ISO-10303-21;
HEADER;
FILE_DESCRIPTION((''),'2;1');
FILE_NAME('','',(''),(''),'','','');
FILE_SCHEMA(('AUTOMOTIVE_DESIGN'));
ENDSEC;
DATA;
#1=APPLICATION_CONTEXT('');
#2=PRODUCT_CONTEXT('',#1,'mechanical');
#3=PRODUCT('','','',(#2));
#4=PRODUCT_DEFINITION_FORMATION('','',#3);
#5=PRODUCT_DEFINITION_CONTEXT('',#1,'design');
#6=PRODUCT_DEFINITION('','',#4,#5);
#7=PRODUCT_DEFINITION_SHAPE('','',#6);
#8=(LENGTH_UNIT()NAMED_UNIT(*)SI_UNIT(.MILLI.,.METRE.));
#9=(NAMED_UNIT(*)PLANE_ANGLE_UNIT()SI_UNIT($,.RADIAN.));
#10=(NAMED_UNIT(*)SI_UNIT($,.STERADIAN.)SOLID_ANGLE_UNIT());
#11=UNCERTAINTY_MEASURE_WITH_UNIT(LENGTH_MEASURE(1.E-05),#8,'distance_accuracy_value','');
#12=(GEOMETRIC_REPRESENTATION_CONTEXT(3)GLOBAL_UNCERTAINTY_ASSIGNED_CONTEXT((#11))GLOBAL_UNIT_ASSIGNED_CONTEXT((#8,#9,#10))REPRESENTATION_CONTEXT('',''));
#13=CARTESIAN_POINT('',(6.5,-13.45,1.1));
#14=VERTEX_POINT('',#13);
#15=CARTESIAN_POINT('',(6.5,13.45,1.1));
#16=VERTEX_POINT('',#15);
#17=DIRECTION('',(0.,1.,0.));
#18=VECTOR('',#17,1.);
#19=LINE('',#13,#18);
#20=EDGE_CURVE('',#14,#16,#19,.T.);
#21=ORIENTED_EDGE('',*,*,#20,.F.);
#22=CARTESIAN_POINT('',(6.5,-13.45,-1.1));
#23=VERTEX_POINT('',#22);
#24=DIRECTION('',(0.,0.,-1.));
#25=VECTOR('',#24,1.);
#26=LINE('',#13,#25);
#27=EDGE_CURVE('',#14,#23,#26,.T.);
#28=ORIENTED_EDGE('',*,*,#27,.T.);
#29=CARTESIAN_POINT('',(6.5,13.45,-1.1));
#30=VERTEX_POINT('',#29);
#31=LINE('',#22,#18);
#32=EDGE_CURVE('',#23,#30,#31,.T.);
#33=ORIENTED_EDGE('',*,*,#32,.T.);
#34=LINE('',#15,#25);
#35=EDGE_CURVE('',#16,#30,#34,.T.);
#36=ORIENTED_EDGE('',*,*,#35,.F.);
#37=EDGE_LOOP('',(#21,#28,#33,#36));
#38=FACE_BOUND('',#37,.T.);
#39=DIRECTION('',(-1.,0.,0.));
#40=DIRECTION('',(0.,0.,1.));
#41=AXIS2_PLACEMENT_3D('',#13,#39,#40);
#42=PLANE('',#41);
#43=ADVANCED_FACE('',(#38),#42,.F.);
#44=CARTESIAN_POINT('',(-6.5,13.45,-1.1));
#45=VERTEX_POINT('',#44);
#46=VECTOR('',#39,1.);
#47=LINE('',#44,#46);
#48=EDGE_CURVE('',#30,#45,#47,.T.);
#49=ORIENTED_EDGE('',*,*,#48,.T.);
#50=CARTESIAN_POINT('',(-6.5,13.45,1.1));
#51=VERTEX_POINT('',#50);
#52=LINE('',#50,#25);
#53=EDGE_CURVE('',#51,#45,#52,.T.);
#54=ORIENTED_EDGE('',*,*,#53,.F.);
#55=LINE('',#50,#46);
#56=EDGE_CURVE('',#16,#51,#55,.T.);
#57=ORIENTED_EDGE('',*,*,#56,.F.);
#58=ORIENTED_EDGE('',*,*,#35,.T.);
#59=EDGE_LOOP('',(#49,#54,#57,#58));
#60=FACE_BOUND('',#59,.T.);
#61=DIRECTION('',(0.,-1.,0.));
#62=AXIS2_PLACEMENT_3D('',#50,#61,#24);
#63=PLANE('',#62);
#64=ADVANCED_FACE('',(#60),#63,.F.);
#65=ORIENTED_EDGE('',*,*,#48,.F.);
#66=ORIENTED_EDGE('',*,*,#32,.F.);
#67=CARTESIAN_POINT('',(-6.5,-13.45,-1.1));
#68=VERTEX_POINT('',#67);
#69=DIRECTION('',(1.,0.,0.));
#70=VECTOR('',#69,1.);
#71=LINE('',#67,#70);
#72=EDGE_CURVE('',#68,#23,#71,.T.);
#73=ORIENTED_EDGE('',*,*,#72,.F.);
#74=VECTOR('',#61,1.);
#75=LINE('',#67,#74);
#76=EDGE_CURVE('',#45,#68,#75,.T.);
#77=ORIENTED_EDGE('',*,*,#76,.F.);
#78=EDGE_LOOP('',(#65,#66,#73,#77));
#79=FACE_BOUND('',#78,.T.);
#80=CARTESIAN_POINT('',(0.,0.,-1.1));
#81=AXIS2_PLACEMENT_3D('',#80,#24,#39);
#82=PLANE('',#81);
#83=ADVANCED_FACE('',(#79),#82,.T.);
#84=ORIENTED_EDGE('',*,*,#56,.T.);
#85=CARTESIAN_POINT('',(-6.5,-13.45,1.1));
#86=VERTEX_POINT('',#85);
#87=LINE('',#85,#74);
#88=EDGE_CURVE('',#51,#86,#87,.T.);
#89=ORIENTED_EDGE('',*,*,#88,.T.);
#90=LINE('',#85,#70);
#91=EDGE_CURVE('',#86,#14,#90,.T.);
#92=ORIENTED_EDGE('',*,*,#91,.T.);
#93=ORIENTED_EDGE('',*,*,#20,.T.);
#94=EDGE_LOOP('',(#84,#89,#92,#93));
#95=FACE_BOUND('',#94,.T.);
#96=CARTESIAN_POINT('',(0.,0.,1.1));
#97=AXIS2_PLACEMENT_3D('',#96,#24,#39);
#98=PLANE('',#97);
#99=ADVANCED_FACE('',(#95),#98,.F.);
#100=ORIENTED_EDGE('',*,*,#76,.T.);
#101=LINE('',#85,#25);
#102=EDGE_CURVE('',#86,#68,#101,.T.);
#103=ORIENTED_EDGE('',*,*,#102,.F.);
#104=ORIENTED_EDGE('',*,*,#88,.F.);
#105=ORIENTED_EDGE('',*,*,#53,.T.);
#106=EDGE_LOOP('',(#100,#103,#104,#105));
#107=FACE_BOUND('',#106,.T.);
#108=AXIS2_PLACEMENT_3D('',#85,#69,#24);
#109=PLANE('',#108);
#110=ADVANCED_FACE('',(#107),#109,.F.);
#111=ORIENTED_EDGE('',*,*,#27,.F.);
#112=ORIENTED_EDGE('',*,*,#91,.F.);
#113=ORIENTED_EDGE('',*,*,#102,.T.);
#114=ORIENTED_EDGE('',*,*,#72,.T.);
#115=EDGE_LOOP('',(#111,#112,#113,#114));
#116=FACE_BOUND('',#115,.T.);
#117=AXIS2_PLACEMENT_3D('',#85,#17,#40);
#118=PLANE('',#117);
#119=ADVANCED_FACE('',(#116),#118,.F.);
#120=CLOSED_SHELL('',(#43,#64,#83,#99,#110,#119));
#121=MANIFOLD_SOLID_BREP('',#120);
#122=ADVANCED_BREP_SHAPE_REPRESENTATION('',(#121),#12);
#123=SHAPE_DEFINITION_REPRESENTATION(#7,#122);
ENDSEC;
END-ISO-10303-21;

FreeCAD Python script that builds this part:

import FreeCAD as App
import Part
import Sketcher


def add_polygon(sketch, points):
    """Adds a closed chain of lines whose ends are joined by coincident constraints."""
    first, n = sketch.GeometryCount, len(points)
    for a, b in zip(points, points[1:] + points[:1]):
        sketch.addGeometry(Part.LineSegment(App.Vector(*a, 0), App.Vector(*b, 0)), False)
    for i in range(n):
        sketch.addConstraint(Sketcher.Constraint("Coincident", first + i, 2, first + (i + 1) % n, 1))

doc = App.newDocument("Part")
params = doc.addObject("Spreadsheet::Sheet", "Params")
for row, (alias, value) in enumerate([
    ("sketch1_width", "13 mm"),
    ("sketch1_height", "26.9 mm"),
    ("pad1_length", "2.2 mm"),
], start=1):
    params.set(f"A{row}", alias)
    params.set(f"B{row}", "=" + value)
    params.setAlias(f"B{row}", alias)

body = doc.addObject("PartDesign::Body", "Body")

# Sketch on XY plane
sketch1 = body.newObject("Sketcher::SketchObject", "Sketch")
sketch1.AttachmentSupport = (doc.getObject("XY_Plane"), [""])
sketch1.MapMode = "FlatFace"
add_polygon(sketch1, [(-6, 13), (-6, -13), (6, -13), (6, 13)])  # lines 0-3
sketch1.addConstraint([
    Sketcher.Constraint("Vertical", 0),
    Sketcher.Constraint("Horizontal", 1),
    Sketcher.Constraint("Vertical", 2),
    Sketcher.Constraint("Horizontal", 3),
    Sketcher.Constraint("Symmetric", 0, 2, 2, 2, -1, 1),
    Sketcher.Constraint("DistanceX", 1, 1, 1, 2, 13.0),
    Sketcher.Constraint("DistanceY", 0, 2, 0, 1, 26.9),
])
sketch1.setExpression("Constraints[9]", "Params.sketch1_width")
sketch1.setExpression("Constraints[10]", "Params.sketch1_height")
pad1 = body.newObject("PartDesign::Pad", "Pad")
pad1.Profile = sketch1
pad1.setExpression("Length", "Params.pad1_length")
pad1.Midplane = True

doc.recompute()
